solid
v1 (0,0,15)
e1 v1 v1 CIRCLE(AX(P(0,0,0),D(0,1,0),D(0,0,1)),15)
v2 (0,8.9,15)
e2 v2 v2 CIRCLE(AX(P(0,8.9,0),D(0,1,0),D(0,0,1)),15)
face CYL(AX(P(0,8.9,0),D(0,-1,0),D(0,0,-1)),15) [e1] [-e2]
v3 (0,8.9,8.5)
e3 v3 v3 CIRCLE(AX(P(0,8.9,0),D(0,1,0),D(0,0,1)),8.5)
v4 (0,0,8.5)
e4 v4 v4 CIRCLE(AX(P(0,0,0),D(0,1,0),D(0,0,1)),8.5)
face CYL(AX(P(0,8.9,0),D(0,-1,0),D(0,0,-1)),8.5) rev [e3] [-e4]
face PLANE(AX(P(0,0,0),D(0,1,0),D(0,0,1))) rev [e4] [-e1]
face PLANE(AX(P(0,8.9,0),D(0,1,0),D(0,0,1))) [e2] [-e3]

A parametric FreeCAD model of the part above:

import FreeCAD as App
import Part
import Sketcher
from FreeCAD import Vector

doc = App.newDocument("Part")
body = doc.addObject("PartDesign::Body", "Body")

sketch1 = body.newObject("Sketcher::SketchObject", "Sketch")
sketch1.AttachmentSupport = (doc.getObject("XZ_Plane"), [""])
sketch1.MapMode = "FlatFace"
sketch1.addGeometry(Part.Circle(Vector(0, 0, 0), Vector(0, 0, 1), 15), False)
sketch1.addGeometry(Part.Circle(Vector(0, 0, 0), Vector(0, 0, 1), 8.5), False)
sketch1.addConstraint(Sketcher.Constraint("Coincident", 0, 3, -1, 1))
sketch1.addConstraint(Sketcher.Constraint("Coincident", 1, 3, -1, 1))
sketch1.addConstraint(Sketcher.Constraint("Diameter", 0, 30.0))
sketch1.addConstraint(Sketcher.Constraint("Diameter", 1, 17.0))
pad1 = body.newObject("PartDesign::Pad", "Pad")
pad1.Profile = sketch1
pad1.Length = 8.9
pad1.Reversed = True

doc.recompute()
